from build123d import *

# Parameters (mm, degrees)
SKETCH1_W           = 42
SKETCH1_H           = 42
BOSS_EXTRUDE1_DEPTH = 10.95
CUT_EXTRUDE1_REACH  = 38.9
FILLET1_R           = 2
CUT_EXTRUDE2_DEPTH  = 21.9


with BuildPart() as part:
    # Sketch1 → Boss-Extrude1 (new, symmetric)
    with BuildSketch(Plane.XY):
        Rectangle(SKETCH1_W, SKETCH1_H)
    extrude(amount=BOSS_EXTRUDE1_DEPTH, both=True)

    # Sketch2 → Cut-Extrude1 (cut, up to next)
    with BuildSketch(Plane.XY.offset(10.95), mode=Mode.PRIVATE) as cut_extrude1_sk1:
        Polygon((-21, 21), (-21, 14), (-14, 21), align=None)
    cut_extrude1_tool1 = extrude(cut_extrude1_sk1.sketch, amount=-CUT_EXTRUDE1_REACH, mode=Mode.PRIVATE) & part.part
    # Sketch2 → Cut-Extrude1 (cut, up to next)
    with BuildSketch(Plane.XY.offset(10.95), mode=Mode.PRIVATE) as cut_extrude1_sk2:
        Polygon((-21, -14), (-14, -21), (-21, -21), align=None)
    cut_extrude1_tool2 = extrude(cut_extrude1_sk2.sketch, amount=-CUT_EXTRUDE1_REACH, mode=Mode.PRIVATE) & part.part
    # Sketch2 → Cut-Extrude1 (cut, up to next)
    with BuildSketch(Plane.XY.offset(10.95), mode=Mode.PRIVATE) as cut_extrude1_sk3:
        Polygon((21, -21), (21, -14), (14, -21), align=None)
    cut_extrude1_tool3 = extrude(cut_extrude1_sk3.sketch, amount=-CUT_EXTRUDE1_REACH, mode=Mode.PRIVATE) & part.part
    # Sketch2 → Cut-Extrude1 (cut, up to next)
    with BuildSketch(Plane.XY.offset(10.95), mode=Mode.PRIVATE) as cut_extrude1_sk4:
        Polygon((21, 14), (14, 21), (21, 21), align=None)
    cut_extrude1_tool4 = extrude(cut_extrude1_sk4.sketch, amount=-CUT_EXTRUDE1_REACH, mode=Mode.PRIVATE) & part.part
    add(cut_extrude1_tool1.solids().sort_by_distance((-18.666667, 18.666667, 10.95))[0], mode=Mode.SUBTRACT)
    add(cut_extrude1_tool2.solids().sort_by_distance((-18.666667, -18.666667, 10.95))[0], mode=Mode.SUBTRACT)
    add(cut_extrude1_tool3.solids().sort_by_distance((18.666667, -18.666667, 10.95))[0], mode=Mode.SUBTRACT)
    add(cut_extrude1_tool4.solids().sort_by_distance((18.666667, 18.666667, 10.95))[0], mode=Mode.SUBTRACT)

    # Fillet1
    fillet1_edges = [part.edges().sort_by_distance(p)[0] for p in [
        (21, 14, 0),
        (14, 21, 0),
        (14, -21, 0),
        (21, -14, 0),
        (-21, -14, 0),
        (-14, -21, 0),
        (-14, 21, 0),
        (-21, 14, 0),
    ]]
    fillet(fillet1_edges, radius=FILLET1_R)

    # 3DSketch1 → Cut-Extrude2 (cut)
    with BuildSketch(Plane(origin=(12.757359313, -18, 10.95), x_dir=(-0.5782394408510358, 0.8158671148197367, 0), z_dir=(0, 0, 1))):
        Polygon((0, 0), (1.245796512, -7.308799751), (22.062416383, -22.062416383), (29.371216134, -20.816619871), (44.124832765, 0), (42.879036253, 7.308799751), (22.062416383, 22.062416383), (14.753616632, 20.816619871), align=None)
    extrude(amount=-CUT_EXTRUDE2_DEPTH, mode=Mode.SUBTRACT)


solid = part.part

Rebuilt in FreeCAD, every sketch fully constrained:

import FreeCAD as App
import Part
import Sketcher
Q = App.Units.Quantity


def edges_at(feature, points):
    """Names of the edges that pass closest to the given points."""
    edges = feature.Shape.Edges
    near = lambda p: min(range(len(edges)), key=lambda i: edges[i].distToShape(Part.Vertex(*p))[0])
    return sorted({f"Edge{near(p) + 1}" for p in points})

doc = App.newDocument("Part")
body = doc.addObject("PartDesign::Body", "Body")

# Sketch on XY plane
sketch1 = body.newObject("Sketcher::SketchObject", "Sketch")
sketch1.AttachmentSupport = (doc.getObject("XY_Plane"), [""])
sketch1.MapMode = "FlatFace"
sketch1.addGeometry(Part.LineSegment(App.Vector(-21, 21, 0), App.Vector(-21, -21, 0)), False)
sketch1.addGeometry(Part.LineSegment(App.Vector(-21, -21, 0), App.Vector(21, -21, 0)), False)
sketch1.addGeometry(Part.LineSegment(App.Vector(21, -21, 0), App.Vector(21, 21, 0)), False)
sketch1.addGeometry(Part.LineSegment(App.Vector(21, 21, 0), App.Vector(-21, 21, 0)), False)
sketch1.addConstraint(Sketcher.Constraint("Coincident", 0, 2, 1, 1))
sketch1.addConstraint(Sketcher.Constraint("Coincident", 1, 2, 2, 1))
sketch1.addConstraint(Sketcher.Constraint("Coincident", 2, 2, 3, 1))
sketch1.addConstraint(Sketcher.Constraint("Coincident", 3, 2, 0, 1))
sketch1.addConstraint(Sketcher.Constraint("Vertical", 0))
sketch1.addConstraint(Sketcher.Constraint("Horizontal", 1))
sketch1.addConstraint(Sketcher.Constraint("Vertical", 2))
sketch1.addConstraint(Sketcher.Constraint("Horizontal", 3))
sketch1.addConstraint(Sketcher.Constraint("Symmetric", 0, 2, 2, 2, -1, 1))
sketch1.addConstraint(Sketcher.Constraint("Equal", 3, 0))
sketch1.addConstraint(Sketcher.Constraint("DistanceX", 1, 1, 1, 2, Q("42 mm")))
pad1 = body.newObject("PartDesign::Pad", "Pad")
pad1.Profile = sketch1
pad1.Length = 21.9
pad1.Midplane = True

# Sketch on XY plane
sketch2 = body.newObject("Sketcher::SketchObject", "Sketch001")
sketch2.AttachmentSupport = (doc.getObject("XY_Plane"), [""])
sketch2.MapMode = "FlatFace"
sketch2.AttachmentOffset = App.Placement(App.Vector(0, 0, 10.95), App.Rotation())
sketch2.addGeometry(Part.LineSegment(App.Vector(-21, 21, 0), App.Vector(-21, 14, 0)), False)
sketch2.addGeometry(Part.LineSegment(App.Vector(-21, 14, 0), App.Vector(-14, 21, 0)), False)
sketch2.addGeometry(Part.LineSegment(App.Vector(-14, 21, 0), App.Vector(-21, 21, 0)), False)
sketch2.addConstraint(Sketcher.Constraint("Coincident", 0, 2, 1, 1))
sketch2.addConstraint(Sketcher.Constraint("Coincident", 1, 2, 2, 1))
sketch2.addConstraint(Sketcher.Constraint("Coincident", 2, 2, 0, 1))
sketch2.addConstraint(Sketcher.Constraint("Vertical", 0))
sketch2.addConstraint(Sketcher.Constraint("Horizontal", 2))
sketch2.addConstraint(Sketcher.Constraint("Equal", 2, 0))
sketch2.addConstraint(Sketcher.Constraint("DistanceX", 2, 2, 2, 1, Q("7 mm")))
sketch2.addConstraint(Sketcher.Constraint("DistanceX", 0, 2, -1, 1, Q("21 mm")))
sketch2.addConstraint(Sketcher.Constraint("DistanceY", -1, 1, 0, 2, Q("14 mm")))
pocket1 = body.newObject("PartDesign::Pocket", "Pocket")
pocket1.Profile = sketch2
pocket1.Type = "UpToFirst"

# Sketch on XY plane
sketch3 = body.newObject("Sketcher::SketchObject", "Sketch002")
sketch3.AttachmentSupport = (doc.getObject("XY_Plane"), [""])
sketch3.MapMode = "FlatFace"
sketch3.AttachmentOffset = App.Placement(App.Vector(0, 0, 10.95), App.Rotation())
sketch3.addGeometry(Part.LineSegment(App.Vector(-14, -21, 0), App.Vector(-21, -14, 0)), False)
sketch3.addGeometry(Part.LineSegment(App.Vector(-21, -14, 0), App.Vector(-21, -21, 0)), False)
sketch3.addGeometry(Part.LineSegment(App.Vector(-21, -21, 0), App.Vector(-14, -21, 0)), False)
sketch3.addConstraint(Sketcher.Constraint("Coincident", 0, 2, 1, 1))
sketch3.addConstraint(Sketcher.Constraint("Coincident", 1, 2, 2, 1))
sketch3.addConstraint(Sketcher.Constraint("Coincident", 2, 2, 0, 1))
sketch3.addConstraint(Sketcher.Constraint("Vertical", 1))
sketch3.addConstraint(Sketcher.Constraint("Horizontal", 2))
sketch3.addConstraint(Sketcher.Constraint("Equal", 2, 1))
sketch3.addConstraint(Sketcher.Constraint("DistanceX", 2, 1, 2, 2, Q("7 mm")))
sketch3.addConstraint(Sketcher.Constraint("DistanceX", 0, 2, -1, 1, Q("21 mm")))
sketch3.addConstraint(Sketcher.Constraint("DistanceY", 0, 2, -1, 1, Q("14 mm")))
pocket2 = body.newObject("PartDesign::Pocket", "Pocket001")
pocket2.Profile = sketch3
pocket2.Type = "UpToFirst"

# Sketch on XY plane
sketch4 = body.newObject("Sketcher::SketchObject", "Sketch003")
sketch4.AttachmentSupport = (doc.getObject("XY_Plane"), [""])
sketch4.MapMode = "FlatFace"
sketch4.AttachmentOffset = App.Placement(App.Vector(0, 0, 10.95), App.Rotation())
sketch4.addGeometry(Part.LineSegment(App.Vector(21, -21, 0), App.Vector(21, -14, 0)), False)
sketch4.addGeometry(Part.LineSegment(App.Vector(21, -14, 0), App.Vector(14, -21, 0)), False)
sketch4.addGeometry(Part.LineSegment(App.Vector(14, -21, 0), App.Vector(21, -21, 0)), False)
sketch4.addConstraint(Sketcher.Constraint("Coincident", 0, 2, 1, 1))
sketch4.addConstraint(Sketcher.Constraint("Coincident", 1, 2, 2, 1))
sketch4.addConstraint(Sketcher.Constraint("Coincident", 2, 2, 0, 1))
sketch4.addConstraint(Sketcher.Constraint("Vertical", 0))
sketch4.addConstraint(Sketcher.Constraint("Horizontal", 2))
sketch4.addConstraint(Sketcher.Constraint("Equal", 2, 0))
sketch4.addConstraint(Sketcher.Constraint("DistanceX", 2, 1, 2, 2, Q("7 mm")))
sketch4.addConstraint(Sketcher.Constraint("DistanceX", -1, 1, 0, 2, Q("21 mm")))
sketch4.addConstraint(Sketcher.Constraint("DistanceY", 0, 2, -1, 1, Q("14 mm")))
pocket3 = body.newObject("PartDesign::Pocket", "Pocket002")
pocket3.Profile = sketch4
pocket3.Type = "UpToFirst"

# Sketch on XY plane
sketch5 = body.newObject("Sketcher::SketchObject", "Sketch004")
sketch5.AttachmentSupport = (doc.getObject("XY_Plane"), [""])
sketch5.MapMode = "FlatFace"
sketch5.AttachmentOffset = App.Placement(App.Vector(0, 0, 10.95), App.Rotation())
sketch5.addGeometry(Part.LineSegment(App.Vector(14, 21, 0), App.Vector(21, 14, 0)), False)
sketch5.addGeometry(Part.LineSegment(App.Vector(21, 14, 0), App.Vector(21, 21, 0)), False)
sketch5.addGeometry(Part.LineSegment(App.Vector(21, 21, 0), App.Vector(14, 21, 0)), False)
sketch5.addConstraint(Sketcher.Constraint("Coincident", 0, 2, 1, 1))
sketch5.addConstraint(Sketcher.Constraint("Coincident", 1, 2, 2, 1))
sketch5.addConstraint(Sketcher.Constraint("Coincident", 2, 2, 0, 1))
sketch5.addConstraint(Sketcher.Constraint("Vertical", 1))
sketch5.addConstraint(Sketcher.Constraint("Horizontal", 2))
sketch5.addConstraint(Sketcher.Constraint("Equal", 2, 1))
sketch5.addConstraint(Sketcher.Constraint("DistanceX", 2, 2, 2, 1, Q("7 mm")))
sketch5.addConstraint(Sketcher.Constraint("DistanceX", -1, 1, 0, 2, Q("21 mm")))
sketch5.addConstraint(Sketcher.Constraint("DistanceY", -1, 1, 0, 2, Q("14 mm")))
pocket4 = body.newObject("PartDesign::Pocket", "Pocket003")
pocket4.Profile = sketch5
pocket4.Type = "UpToFirst"
doc.recompute()

fillet = body.newObject("PartDesign::Fillet", "Fillet")
fillet.Base = (pocket4, edges_at(pocket4, [
    (21, 14, 0),
    (14, 21, 0),
    (14, -21, 0),
    (21, -14, 0),
    (-21, -14, 0),
    (-14, -21, 0),
    (-14, 21, 0),
    (-21, 14, 0),
]))
fillet.Radius = 2

# Sketch on XY plane
sketch6 = body.newObject("Sketcher::SketchObject", "Sketch005")
sketch6.AttachmentSupport = (doc.getObject("XY_Plane"), [""])
sketch6.MapMode = "FlatFace"
sketch6.AttachmentOffset = App.Placement(App.Vector(0, 0, 10.95), App.Rotation())
sketch6.addGeometry(Part.LineSegment(App.Vector(13, -18, 0), App.Vector(18, -13, 0)), False)
sketch6.addGeometry(Part.LineSegment(App.Vector(18, -13, 0), App.Vector(18, 13, 0)), False)
sketch6.addGeometry(Part.LineSegment(App.Vector(18, 13, 0), App.Vector(13, 18, 0)), False)
sketch6.addGeometry(Part.LineSegment(App.Vector(13, 18, 0), App.Vector(-13, 18, 0)), False)
sketch6.addGeometry(Part.LineSegment(App.Vector(-13, 18, 0), App.Vector(-18, 13, 0)), False)
sketch6.addGeometry(Part.LineSegment(App.Vector(-18, 13, 0), App.Vector(-18, -13, 0)), False)
sketch6.addGeometry(Part.LineSegment(App.Vector(-18, -13, 0), App.Vector(-13, -18, 0)), False)
sketch6.addGeometry(Part.LineSegment(App.Vector(-13, -18, 0), App.Vector(13, -18, 0)), False)
sketch6.addConstraint(Sketcher.Constraint("Coincident", 0, 2, 1, 1))
sketch6.addConstraint(Sketcher.Constraint("Coincident", 1, 2, 2, 1))
sketch6.addConstraint(Sketcher.Constraint("Coincident", 2, 2, 3, 1))
sketch6.addConstraint(Sketcher.Constraint("Coincident", 3, 2, 4, 1))
sketch6.addConstraint(Sketcher.Constraint("Coincident", 4, 2, 5, 1))
sketch6.addConstraint(Sketcher.Constraint("Coincident", 5, 2, 6, 1))
sketch6.addConstraint(Sketcher.Constraint("Coincident", 6, 2, 7, 1))
sketch6.addConstraint(Sketcher.Constraint("Coincident", 7, 2, 0, 1))
sketch6.addConstraint(Sketcher.Constraint("Vertical", 1))
sketch6.addConstraint(Sketcher.Constraint("Horizontal", 3))
sketch6.addConstraint(Sketcher.Constraint("Vertical", 5))
sketch6.addConstraint(Sketcher.Constraint("Horizontal", 7))
sketch6.addConstraint(Sketcher.Constraint("Symmetric", 0, 2, 4, 2, -1, 1))
sketch6.addConstraint(Sketcher.Constraint("Symmetric", 2, 2, 6, 2, -1, 1))
sketch6.addConstraint(Sketcher.Constraint("Perpendicular", 0, 2))
sketch6.addConstraint(Sketcher.Constraint("Perpendicular", 2, 4))
sketch6.addConstraint(Sketcher.Constraint("Perpendicular", 4, 6))
sketch6.addConstraint(Sketcher.Constraint("Horizontal", 1, 2, 4, 2))
sketch6.addConstraint(Sketcher.Constraint("Vertical", 3, 2, 6, 2))
sketch6.addConstraint(Sketcher.Constraint("Equal", 7, 1))
sketch6.addConstraint(Sketcher.Constraint("DistanceX", -1, 1, 0, 2, Q("18 mm")))
sketch6.addConstraint(Sketcher.Constraint("DistanceX", 3, 2, 3, 1, Q("25.514719 mm")))
pocket5 = body.newObject("PartDesign::Pocket", "Pocket004")
pocket5.Profile = sketch6
pocket5.Length = 21.9

doc.recompute()
